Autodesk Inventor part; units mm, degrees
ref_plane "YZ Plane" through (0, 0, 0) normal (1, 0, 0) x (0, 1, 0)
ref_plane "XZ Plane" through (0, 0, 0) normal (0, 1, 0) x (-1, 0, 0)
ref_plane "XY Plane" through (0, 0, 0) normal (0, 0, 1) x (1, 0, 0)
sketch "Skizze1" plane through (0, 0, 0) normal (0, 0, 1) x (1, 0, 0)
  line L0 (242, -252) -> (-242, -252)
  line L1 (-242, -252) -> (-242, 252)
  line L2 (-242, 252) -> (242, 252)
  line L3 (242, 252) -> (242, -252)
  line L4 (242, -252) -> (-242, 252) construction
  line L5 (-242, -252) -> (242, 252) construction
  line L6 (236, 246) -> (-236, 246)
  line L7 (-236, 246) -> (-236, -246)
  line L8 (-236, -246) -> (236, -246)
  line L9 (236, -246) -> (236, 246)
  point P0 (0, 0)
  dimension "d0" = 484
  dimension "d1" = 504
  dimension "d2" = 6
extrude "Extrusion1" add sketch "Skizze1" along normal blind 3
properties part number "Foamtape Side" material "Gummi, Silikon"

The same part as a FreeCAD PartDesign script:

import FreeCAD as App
import Part
import Sketcher
from FreeCAD import Vector


def add_polygon(sketch, points):
    """Adds a closed chain of lines whose ends are joined by coincident constraints."""
    first, n = sketch.GeometryCount, len(points)
    for a, b in zip(points, points[1:] + points[:1]):
        sketch.addGeometry(Part.LineSegment(App.Vector(*a, 0), App.Vector(*b, 0)), False)
    for i in range(n):
        sketch.addConstraint(Sketcher.Constraint("Coincident", first + i, 2, first + (i + 1) % n, 1))

doc = App.newDocument("Part")
params = doc.addObject("Spreadsheet::Sheet", "Params")
for row, (alias, value) in enumerate([
    ("sketch1_width", "484 mm"),
    ("sketch1_height", "504 mm"),
    ("pad1_length", "3 mm"),
], start=1):
    params.set(f"A{row}", alias)
    params.set(f"B{row}", "=" + value)
    params.setAlias(f"B{row}", alias)

body = doc.addObject("PartDesign::Body", "Body")

sketch1 = doc.addObject("Sketcher::SketchObject", "Sketch")
body.addObject(sketch1)
sketch1.AttachmentSupport = (doc.XY_Plane, [""])
sketch1.MapMode = "FlatFace"
add_polygon(sketch1, [(-242, -252), (242, -252), (242, 252), (-242, 252)])
add_polygon(sketch1, [(-236, 246), (236, 246), (236, -246), (-236, -246)])
sketch1.addConstraint([
    Sketcher.Constraint("Horizontal", 0),
    Sketcher.Constraint("Vertical", 1),
    Sketcher.Constraint("Horizontal", 2),
    Sketcher.Constraint("Vertical", 3),
    Sketcher.Constraint("Horizontal", 4),
    Sketcher.Constraint("Vertical", 5),
    Sketcher.Constraint("Horizontal", 6),
    Sketcher.Constraint("Vertical", 7),
    Sketcher.Constraint("Symmetric", 0, 2, 2, 2, -1, 1),
    Sketcher.Constraint("Symmetric", 4, 2, 6, 2, -1, 1),
    Sketcher.Constraint("DistanceX", 0, 1, 0, 2, 484.0),
    Sketcher.Constraint("DistanceY", 1, 1, 1, 2, 504.0),
    Sketcher.Constraint("DistanceX", 4, 2, 1, 2, 6.0),
    Sketcher.Constraint("DistanceY", 4, 2, 1, 2, 6.0),
])
sketch1.setExpression("Constraints[18]", "Params.sketch1_width")
sketch1.setExpression("Constraints[19]", "Params.sketch1_height")
pad1 = doc.addObject("PartDesign::Pad", "Pad")
body.addObject(pad1)
pad1.Profile = sketch1
pad1.setExpression("Length", "Params.pad1_length")

doc.recompute()
